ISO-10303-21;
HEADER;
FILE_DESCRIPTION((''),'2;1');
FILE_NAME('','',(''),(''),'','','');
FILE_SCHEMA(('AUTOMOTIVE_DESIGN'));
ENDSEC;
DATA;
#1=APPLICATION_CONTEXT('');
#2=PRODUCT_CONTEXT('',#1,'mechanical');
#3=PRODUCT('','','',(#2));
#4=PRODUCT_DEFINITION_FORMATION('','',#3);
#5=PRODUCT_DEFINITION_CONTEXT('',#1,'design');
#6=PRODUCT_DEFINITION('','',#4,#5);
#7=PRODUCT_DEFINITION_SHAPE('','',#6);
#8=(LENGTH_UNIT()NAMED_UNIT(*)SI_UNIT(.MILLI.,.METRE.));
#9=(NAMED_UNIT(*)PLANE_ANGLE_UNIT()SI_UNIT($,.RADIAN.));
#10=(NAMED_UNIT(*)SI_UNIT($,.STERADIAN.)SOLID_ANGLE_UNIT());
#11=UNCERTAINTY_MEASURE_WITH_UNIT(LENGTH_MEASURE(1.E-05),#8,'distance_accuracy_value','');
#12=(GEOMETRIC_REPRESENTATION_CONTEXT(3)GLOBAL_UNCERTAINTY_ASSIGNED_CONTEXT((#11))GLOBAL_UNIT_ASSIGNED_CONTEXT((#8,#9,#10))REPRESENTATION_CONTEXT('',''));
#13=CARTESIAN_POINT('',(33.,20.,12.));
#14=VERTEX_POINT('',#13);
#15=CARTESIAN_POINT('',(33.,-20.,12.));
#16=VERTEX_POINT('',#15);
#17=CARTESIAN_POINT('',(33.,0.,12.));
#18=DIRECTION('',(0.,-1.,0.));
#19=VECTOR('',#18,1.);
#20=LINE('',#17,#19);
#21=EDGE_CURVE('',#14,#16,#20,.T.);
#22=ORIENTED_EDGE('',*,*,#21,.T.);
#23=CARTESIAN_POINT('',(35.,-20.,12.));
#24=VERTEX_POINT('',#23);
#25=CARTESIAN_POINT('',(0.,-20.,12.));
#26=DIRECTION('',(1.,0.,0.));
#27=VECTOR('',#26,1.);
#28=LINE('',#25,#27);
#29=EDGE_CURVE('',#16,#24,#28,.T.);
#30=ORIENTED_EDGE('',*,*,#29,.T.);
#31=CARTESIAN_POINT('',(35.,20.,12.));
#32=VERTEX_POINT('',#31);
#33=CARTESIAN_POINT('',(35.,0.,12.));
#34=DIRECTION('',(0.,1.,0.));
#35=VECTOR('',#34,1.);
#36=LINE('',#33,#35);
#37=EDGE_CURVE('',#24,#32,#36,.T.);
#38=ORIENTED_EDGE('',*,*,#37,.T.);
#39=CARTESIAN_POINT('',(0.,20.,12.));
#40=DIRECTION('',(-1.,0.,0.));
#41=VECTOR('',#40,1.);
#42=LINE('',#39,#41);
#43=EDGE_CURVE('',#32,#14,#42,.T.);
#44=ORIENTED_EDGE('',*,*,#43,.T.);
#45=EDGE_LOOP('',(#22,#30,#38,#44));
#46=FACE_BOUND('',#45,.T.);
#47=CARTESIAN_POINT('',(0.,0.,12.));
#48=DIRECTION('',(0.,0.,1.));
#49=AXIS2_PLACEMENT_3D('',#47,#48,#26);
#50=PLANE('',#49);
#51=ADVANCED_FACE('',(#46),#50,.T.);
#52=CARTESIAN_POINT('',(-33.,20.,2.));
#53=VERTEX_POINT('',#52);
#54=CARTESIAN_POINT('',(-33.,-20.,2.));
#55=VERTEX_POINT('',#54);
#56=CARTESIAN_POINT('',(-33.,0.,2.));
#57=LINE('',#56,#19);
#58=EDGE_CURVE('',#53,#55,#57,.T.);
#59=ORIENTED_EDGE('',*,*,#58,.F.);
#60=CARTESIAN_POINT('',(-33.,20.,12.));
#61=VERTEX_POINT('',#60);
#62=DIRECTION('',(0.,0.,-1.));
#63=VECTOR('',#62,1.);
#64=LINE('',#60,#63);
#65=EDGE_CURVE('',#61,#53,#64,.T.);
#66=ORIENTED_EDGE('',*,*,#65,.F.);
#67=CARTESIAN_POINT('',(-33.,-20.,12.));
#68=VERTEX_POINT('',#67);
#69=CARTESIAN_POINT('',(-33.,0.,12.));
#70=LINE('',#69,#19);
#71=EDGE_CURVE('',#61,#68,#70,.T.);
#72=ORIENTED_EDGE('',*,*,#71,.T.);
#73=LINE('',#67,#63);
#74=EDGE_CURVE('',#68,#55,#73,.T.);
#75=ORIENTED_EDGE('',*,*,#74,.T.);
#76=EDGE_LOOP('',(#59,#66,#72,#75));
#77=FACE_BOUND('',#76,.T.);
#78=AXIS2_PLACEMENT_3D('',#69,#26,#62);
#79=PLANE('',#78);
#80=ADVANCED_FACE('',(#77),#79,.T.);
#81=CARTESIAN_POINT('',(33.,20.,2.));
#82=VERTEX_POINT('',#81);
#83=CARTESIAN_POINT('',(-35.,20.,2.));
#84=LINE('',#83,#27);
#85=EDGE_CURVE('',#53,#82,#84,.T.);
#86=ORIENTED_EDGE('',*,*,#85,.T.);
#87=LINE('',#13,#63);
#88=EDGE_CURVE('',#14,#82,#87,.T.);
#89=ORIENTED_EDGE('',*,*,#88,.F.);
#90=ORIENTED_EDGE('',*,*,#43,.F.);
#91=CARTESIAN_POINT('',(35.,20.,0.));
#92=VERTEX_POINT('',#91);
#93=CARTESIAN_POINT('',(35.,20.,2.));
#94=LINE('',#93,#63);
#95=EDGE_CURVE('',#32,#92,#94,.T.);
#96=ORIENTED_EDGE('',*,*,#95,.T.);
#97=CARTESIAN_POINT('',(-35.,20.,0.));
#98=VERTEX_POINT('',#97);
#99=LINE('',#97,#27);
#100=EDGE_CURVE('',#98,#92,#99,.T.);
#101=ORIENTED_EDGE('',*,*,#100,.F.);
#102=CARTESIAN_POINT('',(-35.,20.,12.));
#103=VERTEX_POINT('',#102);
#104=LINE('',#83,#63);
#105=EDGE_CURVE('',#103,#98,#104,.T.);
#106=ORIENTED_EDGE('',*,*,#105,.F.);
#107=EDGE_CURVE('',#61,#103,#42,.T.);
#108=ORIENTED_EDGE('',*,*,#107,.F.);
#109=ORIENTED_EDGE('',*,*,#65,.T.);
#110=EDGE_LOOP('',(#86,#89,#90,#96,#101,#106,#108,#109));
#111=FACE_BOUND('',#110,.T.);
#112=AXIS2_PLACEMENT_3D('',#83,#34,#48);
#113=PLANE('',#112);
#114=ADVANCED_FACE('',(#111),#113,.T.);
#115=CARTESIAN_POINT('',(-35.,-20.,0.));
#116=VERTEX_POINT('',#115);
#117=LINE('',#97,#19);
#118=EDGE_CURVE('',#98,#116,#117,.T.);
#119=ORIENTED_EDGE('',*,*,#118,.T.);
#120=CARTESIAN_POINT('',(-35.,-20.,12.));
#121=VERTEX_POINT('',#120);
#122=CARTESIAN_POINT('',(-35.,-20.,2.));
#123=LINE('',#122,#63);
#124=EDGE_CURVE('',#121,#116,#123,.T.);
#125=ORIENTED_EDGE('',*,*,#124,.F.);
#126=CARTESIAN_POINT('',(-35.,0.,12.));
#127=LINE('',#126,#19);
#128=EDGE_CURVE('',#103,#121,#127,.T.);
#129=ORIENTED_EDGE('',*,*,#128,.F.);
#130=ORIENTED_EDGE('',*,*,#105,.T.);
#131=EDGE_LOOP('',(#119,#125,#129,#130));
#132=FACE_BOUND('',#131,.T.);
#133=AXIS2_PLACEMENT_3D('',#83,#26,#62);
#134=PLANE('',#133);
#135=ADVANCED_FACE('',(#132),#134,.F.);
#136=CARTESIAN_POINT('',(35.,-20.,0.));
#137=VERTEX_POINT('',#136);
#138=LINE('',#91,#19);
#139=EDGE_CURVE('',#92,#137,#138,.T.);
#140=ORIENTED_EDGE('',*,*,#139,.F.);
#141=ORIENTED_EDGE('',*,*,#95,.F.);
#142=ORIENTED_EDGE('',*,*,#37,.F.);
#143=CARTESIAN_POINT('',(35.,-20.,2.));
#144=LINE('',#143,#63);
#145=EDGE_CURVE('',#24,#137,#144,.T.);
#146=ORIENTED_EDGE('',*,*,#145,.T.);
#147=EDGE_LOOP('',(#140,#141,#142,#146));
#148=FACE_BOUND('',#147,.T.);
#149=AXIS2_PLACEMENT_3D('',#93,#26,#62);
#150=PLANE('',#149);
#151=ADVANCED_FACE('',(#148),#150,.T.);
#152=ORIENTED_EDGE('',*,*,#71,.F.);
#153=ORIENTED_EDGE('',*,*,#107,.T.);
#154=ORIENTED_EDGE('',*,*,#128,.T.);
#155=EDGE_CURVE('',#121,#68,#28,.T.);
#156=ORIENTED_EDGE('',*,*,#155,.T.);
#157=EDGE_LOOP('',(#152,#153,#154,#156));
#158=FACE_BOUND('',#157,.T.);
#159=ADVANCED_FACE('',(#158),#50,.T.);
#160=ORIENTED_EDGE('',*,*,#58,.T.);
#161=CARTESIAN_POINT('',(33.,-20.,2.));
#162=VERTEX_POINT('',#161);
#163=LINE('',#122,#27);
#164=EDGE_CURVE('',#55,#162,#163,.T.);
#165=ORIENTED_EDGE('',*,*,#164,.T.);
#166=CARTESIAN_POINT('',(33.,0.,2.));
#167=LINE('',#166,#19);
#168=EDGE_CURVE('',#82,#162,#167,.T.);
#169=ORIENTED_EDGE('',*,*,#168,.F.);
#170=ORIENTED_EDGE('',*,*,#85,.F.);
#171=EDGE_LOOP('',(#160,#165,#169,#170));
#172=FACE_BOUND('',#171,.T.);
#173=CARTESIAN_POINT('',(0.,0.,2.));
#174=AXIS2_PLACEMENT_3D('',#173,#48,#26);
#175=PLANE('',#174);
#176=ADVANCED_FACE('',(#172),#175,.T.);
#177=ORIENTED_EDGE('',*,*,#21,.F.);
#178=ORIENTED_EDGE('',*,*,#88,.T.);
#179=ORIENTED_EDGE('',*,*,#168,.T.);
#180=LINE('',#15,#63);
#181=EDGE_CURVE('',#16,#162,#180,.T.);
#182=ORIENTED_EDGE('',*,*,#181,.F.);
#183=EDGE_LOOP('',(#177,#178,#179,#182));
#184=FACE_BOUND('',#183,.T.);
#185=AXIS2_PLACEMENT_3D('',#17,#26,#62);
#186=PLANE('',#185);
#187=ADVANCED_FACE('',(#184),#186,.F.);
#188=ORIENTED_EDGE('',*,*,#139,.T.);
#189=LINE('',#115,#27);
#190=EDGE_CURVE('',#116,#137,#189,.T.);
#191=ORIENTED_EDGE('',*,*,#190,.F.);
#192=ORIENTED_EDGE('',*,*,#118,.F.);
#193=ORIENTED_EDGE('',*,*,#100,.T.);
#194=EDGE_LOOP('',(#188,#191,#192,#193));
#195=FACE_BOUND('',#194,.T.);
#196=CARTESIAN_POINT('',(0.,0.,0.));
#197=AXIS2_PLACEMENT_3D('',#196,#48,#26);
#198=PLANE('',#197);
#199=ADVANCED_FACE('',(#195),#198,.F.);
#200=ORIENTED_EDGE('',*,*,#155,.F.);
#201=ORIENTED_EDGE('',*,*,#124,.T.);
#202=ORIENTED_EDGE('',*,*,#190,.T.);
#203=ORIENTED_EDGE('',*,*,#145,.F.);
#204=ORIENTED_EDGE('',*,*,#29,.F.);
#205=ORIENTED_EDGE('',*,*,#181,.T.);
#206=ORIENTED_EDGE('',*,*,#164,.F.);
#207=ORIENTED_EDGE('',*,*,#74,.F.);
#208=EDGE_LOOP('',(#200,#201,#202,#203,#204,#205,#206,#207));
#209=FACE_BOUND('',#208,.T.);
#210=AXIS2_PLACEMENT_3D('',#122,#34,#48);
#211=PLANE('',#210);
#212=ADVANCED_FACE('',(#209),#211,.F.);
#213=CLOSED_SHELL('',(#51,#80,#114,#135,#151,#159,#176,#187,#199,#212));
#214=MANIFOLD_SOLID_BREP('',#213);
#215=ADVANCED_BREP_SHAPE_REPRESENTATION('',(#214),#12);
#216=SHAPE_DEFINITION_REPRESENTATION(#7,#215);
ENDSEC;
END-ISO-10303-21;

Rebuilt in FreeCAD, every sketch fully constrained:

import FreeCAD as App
import Part
import Sketcher
Q = App.Units.Quantity

doc = App.newDocument("Part")
body = doc.addObject("PartDesign::Body", "Body")

# Sketch on XY plane
sketch1 = body.newObject("Sketcher::SketchObject", "Sketch")
sketch1.AttachmentSupport = (doc.getObject("XY_Plane"), [""])
sketch1.MapMode = "FlatFace"
sketch1.addGeometry([
    Part.LineSegment(App.Vector(-35, 20, 0), App.Vector(-35, -20, 0)),
    Part.LineSegment(App.Vector(-35, -20, 0), App.Vector(35, -20, 0)),
    Part.LineSegment(App.Vector(35, -20, 0), App.Vector(35, 20, 0)),
    Part.LineSegment(App.Vector(35, 20, 0), App.Vector(-35, 20, 0)),
], False)
sketch1.addConstraint([
    Sketcher.Constraint("Coincident", 0, 2, 1, 1),
    Sketcher.Constraint("Coincident", 1, 2, 2, 1),
    Sketcher.Constraint("Coincident", 2, 2, 3, 1),
    Sketcher.Constraint("Coincident", 3, 2, 0, 1),
    Sketcher.Constraint("Vertical", 0),
    Sketcher.Constraint("Horizontal", 1),
    Sketcher.Constraint("Vertical", 2),
    Sketcher.Constraint("Horizontal", 3),
    Sketcher.Constraint("Symmetric", 0, 2, 2, 2, -1, 1),
    Sketcher.Constraint("DistanceX", 1, 1, 1, 2, Q("70 mm")),
    Sketcher.Constraint("DistanceY", 0, 2, 0, 1, Q("40 mm")),
])
pad1 = body.newObject("PartDesign::Pad", "Pad")
pad1.Profile = sketch1
pad1.Length = 2

# Sketch on XY plane
sketch2 = body.newObject("Sketcher::SketchObject", "Sketch001")
sketch2.AttachmentSupport = (doc.getObject("XY_Plane"), [""])
sketch2.MapMode = "FlatFace"
sketch2.AttachmentOffset = App.Placement(App.Vector(0, 0, 2), App.Rotation())
sketch2.addGeometry([
    Part.LineSegment(App.Vector(-35, 20, 0), App.Vector(-35, -20, 0)),  # 0
    Part.LineSegment(App.Vector(-35, -20, 0), App.Vector(-33, -20, 0)),  # 1
    Part.LineSegment(App.Vector(-33, -20, 0), App.Vector(-33, 20, 0)),  # 2
    Part.LineSegment(App.Vector(-33, 20, 0), App.Vector(-35, 20, 0)),  # 3
    Part.LineSegment(App.Vector(33, 20, 0), App.Vector(33, -20, 0)),  # 4
    Part.LineSegment(App.Vector(33, -20, 0), App.Vector(35, -20, 0)),  # 5
    Part.LineSegment(App.Vector(35, -20, 0), App.Vector(35, 20, 0)),  # 6
    Part.LineSegment(App.Vector(35, 20, 0), App.Vector(33, 20, 0)),  # 7
], False)
sketch2.addConstraint([
    Sketcher.Constraint("Coincident", 0, 2, 1, 1),
    Sketcher.Constraint("Coincident", 1, 2, 2, 1),
    Sketcher.Constraint("Coincident", 2, 2, 3, 1),
    Sketcher.Constraint("Coincident", 3, 2, 0, 1),
    Sketcher.Constraint("Coincident", 4, 2, 5, 1),
    Sketcher.Constraint("Coincident", 5, 2, 6, 1),
    Sketcher.Constraint("Coincident", 6, 2, 7, 1),
    Sketcher.Constraint("Coincident", 7, 2, 4, 1),
    Sketcher.Constraint("Vertical", 0),
    Sketcher.Constraint("Horizontal", 1),
    Sketcher.Constraint("Vertical", 2),
    Sketcher.Constraint("Horizontal", 3),
    Sketcher.Constraint("Vertical", 4),
    Sketcher.Constraint("Horizontal", 5),
    Sketcher.Constraint("Vertical", 6),
    Sketcher.Constraint("Horizontal", 7),
    Sketcher.Constraint("Symmetric", 2, 2, 4, 2, -1, 1),
    Sketcher.Constraint("Symmetric", 0, 2, 6, 2, -1, 1),
    Sketcher.Constraint("Horizontal", 1, 2, 4, 2),
    Sketcher.Constraint("DistanceX", 1, 1, 1, 2, Q("2 mm")),
    Sketcher.Constraint("DistanceY", 0, 2, 0, 1, Q("40 mm")),
    Sketcher.Constraint("DistanceX", 0, 2, -1, 1, Q("35 mm")),
])
pad2 = body.newObject("PartDesign::Pad", "Pad001")
pad2.Profile = sketch2
pad2.Length = 10

doc.recompute()
